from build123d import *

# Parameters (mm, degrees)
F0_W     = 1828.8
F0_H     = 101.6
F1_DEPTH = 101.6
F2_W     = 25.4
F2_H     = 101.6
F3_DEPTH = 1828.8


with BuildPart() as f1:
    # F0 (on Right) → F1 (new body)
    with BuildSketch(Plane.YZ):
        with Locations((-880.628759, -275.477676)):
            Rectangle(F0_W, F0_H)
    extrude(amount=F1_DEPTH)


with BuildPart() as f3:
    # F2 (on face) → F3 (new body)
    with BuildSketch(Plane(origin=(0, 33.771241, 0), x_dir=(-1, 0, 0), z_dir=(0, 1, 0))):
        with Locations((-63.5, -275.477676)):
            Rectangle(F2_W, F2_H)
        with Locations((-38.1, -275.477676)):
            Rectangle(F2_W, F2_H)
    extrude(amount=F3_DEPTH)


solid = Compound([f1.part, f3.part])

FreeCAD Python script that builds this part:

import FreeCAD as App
import Part
import Sketcher
Q = App.Units.Quantity

doc = App.newDocument("Part")
body = doc.addObject("PartDesign::Body", "Body")

# Sketch on YZ plane
sketch1 = body.newObject("Sketcher::SketchObject", "Sketch")
sketch1.AttachmentSupport = (doc.getObject("YZ_Plane"), [""])
sketch1.MapMode = "FlatFace"
sketch1.addGeometry(Part.LineSegment(App.Vector(-1795, -225, 0), App.Vector(-1795, -326, 0)), False)
sketch1.addGeometry(Part.LineSegment(App.Vector(-1795, -326, 0), App.Vector(34, -326, 0)), False)
sketch1.addGeometry(Part.LineSegment(App.Vector(34, -326, 0), App.Vector(34, -225, 0)), False)
sketch1.addGeometry(Part.LineSegment(App.Vector(34, -225, 0), App.Vector(-1795, -225, 0)), False)
sketch1.addConstraint(Sketcher.Constraint("Coincident", 0, 2, 1, 1))
sketch1.addConstraint(Sketcher.Constraint("Coincident", 1, 2, 2, 1))
sketch1.addConstraint(Sketcher.Constraint("Coincident", 2, 2, 3, 1))
sketch1.addConstraint(Sketcher.Constraint("Coincident", 3, 2, 0, 1))
sketch1.addConstraint(Sketcher.Constraint("Vertical", 0))
sketch1.addConstraint(Sketcher.Constraint("Horizontal", 1))
sketch1.addConstraint(Sketcher.Constraint("Vertical", 2))
sketch1.addConstraint(Sketcher.Constraint("Horizontal", 3))
sketch1.addConstraint(Sketcher.Constraint("DistanceX", 1, 1, 1, 2, Q("72 in")))
sketch1.addConstraint(Sketcher.Constraint("DistanceY", 0, 2, 0, 1, Q("4 in")))
sketch1.addConstraint(Sketcher.Constraint("DistanceX", 0, 2, -1, 1, Q("1795.028759 mm")))
sketch1.addConstraint(Sketcher.Constraint("DistanceY", 0, 2, -1, 1, Q("326.277676 mm")))
pad1 = body.newObject("PartDesign::Pad", "Pad")
pad1.Profile = sketch1
pad1.Length = Q("4 in")
body2 = doc.addObject("PartDesign::Body", "Body001")

# Sketch on XZ plane
sketch2 = body2.newObject("Sketcher::SketchObject", "Sketch001")
sketch2.AttachmentSupport = (doc.getObject("XZ_Plane001"), [""])
sketch2.MapMode = "FlatFace"
sketch2.AttachmentOffset = App.Placement(App.Vector(0, 0, -33.771241), App.Rotation())
sketch2.addGeometry(Part.LineSegment(App.Vector(76, -225, 0), App.Vector(76, -326, 0)), False)
sketch2.addGeometry(Part.LineSegment(App.Vector(76, -326, 0), App.Vector(25, -326, 0)), False)
sketch2.addGeometry(Part.LineSegment(App.Vector(25, -326, 0), App.Vector(25, -225, 0)), False)
sketch2.addGeometry(Part.LineSegment(App.Vector(25, -225, 0), App.Vector(76, -225, 0)), False)
sketch2.addConstraint(Sketcher.Constraint("Coincident", 0, 2, 1, 1))
sketch2.addConstraint(Sketcher.Constraint("Coincident", 1, 2, 2, 1))
sketch2.addConstraint(Sketcher.Constraint("Coincident", 2, 2, 3, 1))
sketch2.addConstraint(Sketcher.Constraint("Coincident", 3, 2, 0, 1))
sketch2.addConstraint(Sketcher.Constraint("Vertical", 0))
sketch2.addConstraint(Sketcher.Constraint("Horizontal", 1))
sketch2.addConstraint(Sketcher.Constraint("Vertical", 2))
sketch2.addConstraint(Sketcher.Constraint("Horizontal", 3))
sketch2.addConstraint(Sketcher.Constraint("DistanceX", 1, 2, 1, 1, Q("2 in")))
sketch2.addConstraint(Sketcher.Constraint("DistanceY", 0, 2, 0, 1, Q("4 in")))
sketch2.addConstraint(Sketcher.Constraint("DistanceX", -1, 1, 0, 2, Q("3 in")))
sketch2.addConstraint(Sketcher.Constraint("DistanceY", 0, 2, -1, 1, Q("326.277676 mm")))
pad2 = body2.newObject("PartDesign::Pad", "Pad001")
pad2.Profile = sketch2
pad2.Length = Q("72 in")
pad2.Reversed = True

doc.recompute()
